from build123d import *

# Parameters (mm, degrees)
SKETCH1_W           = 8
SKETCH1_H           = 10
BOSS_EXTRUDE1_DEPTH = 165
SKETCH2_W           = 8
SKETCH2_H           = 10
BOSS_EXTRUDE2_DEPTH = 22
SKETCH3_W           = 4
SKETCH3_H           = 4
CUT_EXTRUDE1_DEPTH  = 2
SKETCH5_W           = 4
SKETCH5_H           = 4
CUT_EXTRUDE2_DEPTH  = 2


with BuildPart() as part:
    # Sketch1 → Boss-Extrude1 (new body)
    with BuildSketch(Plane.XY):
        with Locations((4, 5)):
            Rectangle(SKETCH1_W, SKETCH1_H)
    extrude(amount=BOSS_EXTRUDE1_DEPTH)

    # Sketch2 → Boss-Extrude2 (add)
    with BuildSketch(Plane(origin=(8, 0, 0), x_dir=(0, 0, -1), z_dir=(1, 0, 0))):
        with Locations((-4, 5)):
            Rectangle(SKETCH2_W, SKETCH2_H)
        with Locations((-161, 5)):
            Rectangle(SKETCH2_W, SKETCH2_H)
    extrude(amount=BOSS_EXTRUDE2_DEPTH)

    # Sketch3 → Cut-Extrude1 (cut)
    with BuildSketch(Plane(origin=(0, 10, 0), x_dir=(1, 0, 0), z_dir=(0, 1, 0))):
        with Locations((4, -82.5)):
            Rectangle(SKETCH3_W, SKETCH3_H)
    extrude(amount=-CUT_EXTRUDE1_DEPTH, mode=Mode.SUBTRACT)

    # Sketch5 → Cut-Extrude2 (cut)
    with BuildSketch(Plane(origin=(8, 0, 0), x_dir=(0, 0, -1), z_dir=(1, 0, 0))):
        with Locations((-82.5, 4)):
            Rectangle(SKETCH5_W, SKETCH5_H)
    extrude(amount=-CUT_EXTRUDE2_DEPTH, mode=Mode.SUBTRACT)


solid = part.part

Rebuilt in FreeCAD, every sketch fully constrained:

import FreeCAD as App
import Part
import Sketcher

V = App.Vector

doc = App.newDocument("Part")
body = doc.addObject("PartDesign::Body", "Body")

# Sketch on XY plane
sketch1 = doc.addObject("Sketcher::SketchObject", "Sketch")
body.addObject(sketch1)
sketch1.AttachmentSupport = (doc.XY_Plane, [""])
sketch1.MapMode = "FlatFace"
sketch1.addGeometry(Part.LineSegment(V(0, 10, 0), V(0, 0, 0)), False)
sketch1.addGeometry(Part.LineSegment(V(0, 0, 0), V(8, 0, 0)), False)
sketch1.addGeometry(Part.LineSegment(V(8, 0, 0), V(8, 10, 0)), False)
sketch1.addGeometry(Part.LineSegment(V(8, 10, 0), V(0, 10, 0)), False)
sketch1.addConstraint(Sketcher.Constraint("Coincident", 0, 2, 1, 1))
sketch1.addConstraint(Sketcher.Constraint("Coincident", 1, 2, 2, 1))
sketch1.addConstraint(Sketcher.Constraint("Coincident", 2, 2, 3, 1))
sketch1.addConstraint(Sketcher.Constraint("Coincident", 3, 2, 0, 1))
sketch1.addConstraint(Sketcher.Constraint("Vertical", 0))
sketch1.addConstraint(Sketcher.Constraint("Horizontal", 1))
sketch1.addConstraint(Sketcher.Constraint("Vertical", 2))
sketch1.addConstraint(Sketcher.Constraint("Horizontal", 3))
sketch1.addConstraint(Sketcher.Constraint("Coincident", 0, 2, -1, 1))
sketch1.addConstraint(Sketcher.Constraint("DistanceX", 1, 1, 1, 2, 8.0))
sketch1.addConstraint(Sketcher.Constraint("DistanceY", 0, 2, 0, 1, 10.0))
pad1 = doc.addObject("PartDesign::Pad", "Pad")
body.addObject(pad1)
pad1.Profile = sketch1
pad1.Length = 165

# Sketch on YZ plane
sketch2 = doc.addObject("Sketcher::SketchObject", "Sketch001")
body.addObject(sketch2)
sketch2.AttachmentSupport = (doc.YZ_Plane, [""])
sketch2.MapMode = "FlatFace"
sketch2.AttachmentOffset = App.Placement(V(0, 0, 8), App.Rotation())
sketch2.addGeometry(Part.LineSegment(V(10, 8, 0), V(0, 8, 0)), False)
sketch2.addGeometry(Part.LineSegment(V(0, 8, 0), V(0, 0, 0)), False)
sketch2.addGeometry(Part.LineSegment(V(0, 0, 0), V(10, 0, 0)), False)
sketch2.addGeometry(Part.LineSegment(V(10, 0, 0), V(10, 8, 0)), False)
sketch2.addGeometry(Part.LineSegment(V(10, 165, 0), V(0, 165, 0)), False)
sketch2.addGeometry(Part.LineSegment(V(0, 165, 0), V(0, 157, 0)), False)
sketch2.addGeometry(Part.LineSegment(V(0, 157, 0), V(10, 157, 0)), False)
sketch2.addGeometry(Part.LineSegment(V(10, 157, 0), V(10, 165, 0)), False)
sketch2.addConstraint(Sketcher.Constraint("Coincident", 0, 2, 1, 1))
sketch2.addConstraint(Sketcher.Constraint("Coincident", 1, 2, 2, 1))
sketch2.addConstraint(Sketcher.Constraint("Coincident", 2, 2, 3, 1))
sketch2.addConstraint(Sketcher.Constraint("Coincident", 3, 2, 0, 1))
sketch2.addConstraint(Sketcher.Constraint("Coincident", 4, 2, 5, 1))
sketch2.addConstraint(Sketcher.Constraint("Coincident", 5, 2, 6, 1))
sketch2.addConstraint(Sketcher.Constraint("Coincident", 6, 2, 7, 1))
sketch2.addConstraint(Sketcher.Constraint("Coincident", 7, 2, 4, 1))
sketch2.addConstraint(Sketcher.Constraint("Horizontal", 0))
sketch2.addConstraint(Sketcher.Constraint("Vertical", 1))
sketch2.addConstraint(Sketcher.Constraint("Horizontal", 2))
sketch2.addConstraint(Sketcher.Constraint("Vertical", 3))
sketch2.addConstraint(Sketcher.Constraint("Horizontal", 4))
sketch2.addConstraint(Sketcher.Constraint("Vertical", 5))
sketch2.addConstraint(Sketcher.Constraint("Horizontal", 6))
sketch2.addConstraint(Sketcher.Constraint("Vertical", 7))
sketch2.addConstraint(Sketcher.Constraint("Coincident", 1, 2, -1, 1))
sketch2.addConstraint(Sketcher.Constraint("PointOnObject", 4, 2, -2))
sketch2.addConstraint(Sketcher.Constraint("Vertical", 3, 2, 6, 2))
sketch2.addConstraint(Sketcher.Constraint("Equal", 3, 5))
sketch2.addConstraint(Sketcher.Constraint("DistanceX", 0, 2, 0, 1, 10.0))
sketch2.addConstraint(Sketcher.Constraint("DistanceY", 1, 2, 1, 1, 8.0))
sketch2.addConstraint(Sketcher.Constraint("DistanceY", -1, 1, 4, 2, 165.0))
pad2 = doc.addObject("PartDesign::Pad", "Pad001")
body.addObject(pad2)
pad2.Profile = sketch2
pad2.Length = 22

# Sketch on XZ plane
sketch3 = doc.addObject("Sketcher::SketchObject", "Sketch002")
body.addObject(sketch3)
sketch3.AttachmentSupport = (doc.XZ_Plane, [""])
sketch3.MapMode = "FlatFace"
sketch3.AttachmentOffset = App.Placement(V(0, 0, -10), App.Rotation())
sketch3.addGeometry(Part.LineSegment(V(2, 80.5, 0), V(2, 84.5, 0)), False)
sketch3.addGeometry(Part.LineSegment(V(2, 84.5, 0), V(6, 84.5, 0)), False)
sketch3.addGeometry(Part.LineSegment(V(6, 84.5, 0), V(6, 80.5, 0)), False)
sketch3.addGeometry(Part.LineSegment(V(6, 80.5, 0), V(2, 80.5, 0)), False)
sketch3.addConstraint(Sketcher.Constraint("Coincident", 0, 2, 1, 1))
sketch3.addConstraint(Sketcher.Constraint("Coincident", 1, 2, 2, 1))
sketch3.addConstraint(Sketcher.Constraint("Coincident", 2, 2, 3, 1))
sketch3.addConstraint(Sketcher.Constraint("Coincident", 3, 2, 0, 1))
sketch3.addConstraint(Sketcher.Constraint("Vertical", 0))
sketch3.addConstraint(Sketcher.Constraint("Horizontal", 1))
sketch3.addConstraint(Sketcher.Constraint("Vertical", 2))
sketch3.addConstraint(Sketcher.Constraint("Horizontal", 3))
sketch3.addConstraint(Sketcher.Constraint("Equal", 3, 0))
sketch3.addConstraint(Sketcher.Constraint("DistanceX", 1, 1, 1, 2, 4.0))
sketch3.addConstraint(Sketcher.Constraint("DistanceX", -1, 1, 0, 2, 2.0))
sketch3.addConstraint(Sketcher.Constraint("DistanceY", -1, 1, 0, 2, 84.5))
pocket1 = doc.addObject("PartDesign::Pocket", "Pocket")
body.addObject(pocket1)
pocket1.Profile = sketch3
pocket1.Length = 2
pocket1.Reversed = True

# Sketch on YZ plane
sketch4 = doc.addObject("Sketcher::SketchObject", "Sketch003")
body.addObject(sketch4)
sketch4.AttachmentSupport = (doc.YZ_Plane, [""])
sketch4.MapMode = "FlatFace"
sketch4.AttachmentOffset = App.Placement(V(0, 0, 8), App.Rotation())
sketch4.addGeometry(Part.LineSegment(V(6, 84.5, 0), V(2, 84.5, 0)), False)
sketch4.addGeometry(Part.LineSegment(V(2, 84.5, 0), V(2, 80.5, 0)), False)
sketch4.addGeometry(Part.LineSegment(V(2, 80.5, 0), V(6, 80.5, 0)), False)
sketch4.addGeometry(Part.LineSegment(V(6, 80.5, 0), V(6, 84.5, 0)), False)
sketch4.addConstraint(Sketcher.Constraint("Coincident", 0, 2, 1, 1))
sketch4.addConstraint(Sketcher.Constraint("Coincident", 1, 2, 2, 1))
sketch4.addConstraint(Sketcher.Constraint("Coincident", 2, 2, 3, 1))
sketch4.addConstraint(Sketcher.Constraint("Coincident", 3, 2, 0, 1))
sketch4.addConstraint(Sketcher.Constraint("Horizontal", 0))
sketch4.addConstraint(Sketcher.Constraint("Vertical", 1))
sketch4.addConstraint(Sketcher.Constraint("Horizontal", 2))
sketch4.addConstraint(Sketcher.Constraint("Vertical", 3))
sketch4.addConstraint(Sketcher.Constraint("Equal", 2, 1))
sketch4.addConstraint(Sketcher.Constraint("DistanceX", 0, 2, 0, 1, 4.0))
sketch4.addConstraint(Sketcher.Constraint("DistanceX", -1, 1, 0, 2, 2.0))
sketch4.addConstraint(Sketcher.Constraint("DistanceY", -1, 1, 0, 2, 84.5))
pocket2 = doc.addObject("PartDesign::Pocket", "Pocket001")
body.addObject(pocket2)
pocket2.Profile = sketch4
pocket2.Length = 2

doc.recompute()
